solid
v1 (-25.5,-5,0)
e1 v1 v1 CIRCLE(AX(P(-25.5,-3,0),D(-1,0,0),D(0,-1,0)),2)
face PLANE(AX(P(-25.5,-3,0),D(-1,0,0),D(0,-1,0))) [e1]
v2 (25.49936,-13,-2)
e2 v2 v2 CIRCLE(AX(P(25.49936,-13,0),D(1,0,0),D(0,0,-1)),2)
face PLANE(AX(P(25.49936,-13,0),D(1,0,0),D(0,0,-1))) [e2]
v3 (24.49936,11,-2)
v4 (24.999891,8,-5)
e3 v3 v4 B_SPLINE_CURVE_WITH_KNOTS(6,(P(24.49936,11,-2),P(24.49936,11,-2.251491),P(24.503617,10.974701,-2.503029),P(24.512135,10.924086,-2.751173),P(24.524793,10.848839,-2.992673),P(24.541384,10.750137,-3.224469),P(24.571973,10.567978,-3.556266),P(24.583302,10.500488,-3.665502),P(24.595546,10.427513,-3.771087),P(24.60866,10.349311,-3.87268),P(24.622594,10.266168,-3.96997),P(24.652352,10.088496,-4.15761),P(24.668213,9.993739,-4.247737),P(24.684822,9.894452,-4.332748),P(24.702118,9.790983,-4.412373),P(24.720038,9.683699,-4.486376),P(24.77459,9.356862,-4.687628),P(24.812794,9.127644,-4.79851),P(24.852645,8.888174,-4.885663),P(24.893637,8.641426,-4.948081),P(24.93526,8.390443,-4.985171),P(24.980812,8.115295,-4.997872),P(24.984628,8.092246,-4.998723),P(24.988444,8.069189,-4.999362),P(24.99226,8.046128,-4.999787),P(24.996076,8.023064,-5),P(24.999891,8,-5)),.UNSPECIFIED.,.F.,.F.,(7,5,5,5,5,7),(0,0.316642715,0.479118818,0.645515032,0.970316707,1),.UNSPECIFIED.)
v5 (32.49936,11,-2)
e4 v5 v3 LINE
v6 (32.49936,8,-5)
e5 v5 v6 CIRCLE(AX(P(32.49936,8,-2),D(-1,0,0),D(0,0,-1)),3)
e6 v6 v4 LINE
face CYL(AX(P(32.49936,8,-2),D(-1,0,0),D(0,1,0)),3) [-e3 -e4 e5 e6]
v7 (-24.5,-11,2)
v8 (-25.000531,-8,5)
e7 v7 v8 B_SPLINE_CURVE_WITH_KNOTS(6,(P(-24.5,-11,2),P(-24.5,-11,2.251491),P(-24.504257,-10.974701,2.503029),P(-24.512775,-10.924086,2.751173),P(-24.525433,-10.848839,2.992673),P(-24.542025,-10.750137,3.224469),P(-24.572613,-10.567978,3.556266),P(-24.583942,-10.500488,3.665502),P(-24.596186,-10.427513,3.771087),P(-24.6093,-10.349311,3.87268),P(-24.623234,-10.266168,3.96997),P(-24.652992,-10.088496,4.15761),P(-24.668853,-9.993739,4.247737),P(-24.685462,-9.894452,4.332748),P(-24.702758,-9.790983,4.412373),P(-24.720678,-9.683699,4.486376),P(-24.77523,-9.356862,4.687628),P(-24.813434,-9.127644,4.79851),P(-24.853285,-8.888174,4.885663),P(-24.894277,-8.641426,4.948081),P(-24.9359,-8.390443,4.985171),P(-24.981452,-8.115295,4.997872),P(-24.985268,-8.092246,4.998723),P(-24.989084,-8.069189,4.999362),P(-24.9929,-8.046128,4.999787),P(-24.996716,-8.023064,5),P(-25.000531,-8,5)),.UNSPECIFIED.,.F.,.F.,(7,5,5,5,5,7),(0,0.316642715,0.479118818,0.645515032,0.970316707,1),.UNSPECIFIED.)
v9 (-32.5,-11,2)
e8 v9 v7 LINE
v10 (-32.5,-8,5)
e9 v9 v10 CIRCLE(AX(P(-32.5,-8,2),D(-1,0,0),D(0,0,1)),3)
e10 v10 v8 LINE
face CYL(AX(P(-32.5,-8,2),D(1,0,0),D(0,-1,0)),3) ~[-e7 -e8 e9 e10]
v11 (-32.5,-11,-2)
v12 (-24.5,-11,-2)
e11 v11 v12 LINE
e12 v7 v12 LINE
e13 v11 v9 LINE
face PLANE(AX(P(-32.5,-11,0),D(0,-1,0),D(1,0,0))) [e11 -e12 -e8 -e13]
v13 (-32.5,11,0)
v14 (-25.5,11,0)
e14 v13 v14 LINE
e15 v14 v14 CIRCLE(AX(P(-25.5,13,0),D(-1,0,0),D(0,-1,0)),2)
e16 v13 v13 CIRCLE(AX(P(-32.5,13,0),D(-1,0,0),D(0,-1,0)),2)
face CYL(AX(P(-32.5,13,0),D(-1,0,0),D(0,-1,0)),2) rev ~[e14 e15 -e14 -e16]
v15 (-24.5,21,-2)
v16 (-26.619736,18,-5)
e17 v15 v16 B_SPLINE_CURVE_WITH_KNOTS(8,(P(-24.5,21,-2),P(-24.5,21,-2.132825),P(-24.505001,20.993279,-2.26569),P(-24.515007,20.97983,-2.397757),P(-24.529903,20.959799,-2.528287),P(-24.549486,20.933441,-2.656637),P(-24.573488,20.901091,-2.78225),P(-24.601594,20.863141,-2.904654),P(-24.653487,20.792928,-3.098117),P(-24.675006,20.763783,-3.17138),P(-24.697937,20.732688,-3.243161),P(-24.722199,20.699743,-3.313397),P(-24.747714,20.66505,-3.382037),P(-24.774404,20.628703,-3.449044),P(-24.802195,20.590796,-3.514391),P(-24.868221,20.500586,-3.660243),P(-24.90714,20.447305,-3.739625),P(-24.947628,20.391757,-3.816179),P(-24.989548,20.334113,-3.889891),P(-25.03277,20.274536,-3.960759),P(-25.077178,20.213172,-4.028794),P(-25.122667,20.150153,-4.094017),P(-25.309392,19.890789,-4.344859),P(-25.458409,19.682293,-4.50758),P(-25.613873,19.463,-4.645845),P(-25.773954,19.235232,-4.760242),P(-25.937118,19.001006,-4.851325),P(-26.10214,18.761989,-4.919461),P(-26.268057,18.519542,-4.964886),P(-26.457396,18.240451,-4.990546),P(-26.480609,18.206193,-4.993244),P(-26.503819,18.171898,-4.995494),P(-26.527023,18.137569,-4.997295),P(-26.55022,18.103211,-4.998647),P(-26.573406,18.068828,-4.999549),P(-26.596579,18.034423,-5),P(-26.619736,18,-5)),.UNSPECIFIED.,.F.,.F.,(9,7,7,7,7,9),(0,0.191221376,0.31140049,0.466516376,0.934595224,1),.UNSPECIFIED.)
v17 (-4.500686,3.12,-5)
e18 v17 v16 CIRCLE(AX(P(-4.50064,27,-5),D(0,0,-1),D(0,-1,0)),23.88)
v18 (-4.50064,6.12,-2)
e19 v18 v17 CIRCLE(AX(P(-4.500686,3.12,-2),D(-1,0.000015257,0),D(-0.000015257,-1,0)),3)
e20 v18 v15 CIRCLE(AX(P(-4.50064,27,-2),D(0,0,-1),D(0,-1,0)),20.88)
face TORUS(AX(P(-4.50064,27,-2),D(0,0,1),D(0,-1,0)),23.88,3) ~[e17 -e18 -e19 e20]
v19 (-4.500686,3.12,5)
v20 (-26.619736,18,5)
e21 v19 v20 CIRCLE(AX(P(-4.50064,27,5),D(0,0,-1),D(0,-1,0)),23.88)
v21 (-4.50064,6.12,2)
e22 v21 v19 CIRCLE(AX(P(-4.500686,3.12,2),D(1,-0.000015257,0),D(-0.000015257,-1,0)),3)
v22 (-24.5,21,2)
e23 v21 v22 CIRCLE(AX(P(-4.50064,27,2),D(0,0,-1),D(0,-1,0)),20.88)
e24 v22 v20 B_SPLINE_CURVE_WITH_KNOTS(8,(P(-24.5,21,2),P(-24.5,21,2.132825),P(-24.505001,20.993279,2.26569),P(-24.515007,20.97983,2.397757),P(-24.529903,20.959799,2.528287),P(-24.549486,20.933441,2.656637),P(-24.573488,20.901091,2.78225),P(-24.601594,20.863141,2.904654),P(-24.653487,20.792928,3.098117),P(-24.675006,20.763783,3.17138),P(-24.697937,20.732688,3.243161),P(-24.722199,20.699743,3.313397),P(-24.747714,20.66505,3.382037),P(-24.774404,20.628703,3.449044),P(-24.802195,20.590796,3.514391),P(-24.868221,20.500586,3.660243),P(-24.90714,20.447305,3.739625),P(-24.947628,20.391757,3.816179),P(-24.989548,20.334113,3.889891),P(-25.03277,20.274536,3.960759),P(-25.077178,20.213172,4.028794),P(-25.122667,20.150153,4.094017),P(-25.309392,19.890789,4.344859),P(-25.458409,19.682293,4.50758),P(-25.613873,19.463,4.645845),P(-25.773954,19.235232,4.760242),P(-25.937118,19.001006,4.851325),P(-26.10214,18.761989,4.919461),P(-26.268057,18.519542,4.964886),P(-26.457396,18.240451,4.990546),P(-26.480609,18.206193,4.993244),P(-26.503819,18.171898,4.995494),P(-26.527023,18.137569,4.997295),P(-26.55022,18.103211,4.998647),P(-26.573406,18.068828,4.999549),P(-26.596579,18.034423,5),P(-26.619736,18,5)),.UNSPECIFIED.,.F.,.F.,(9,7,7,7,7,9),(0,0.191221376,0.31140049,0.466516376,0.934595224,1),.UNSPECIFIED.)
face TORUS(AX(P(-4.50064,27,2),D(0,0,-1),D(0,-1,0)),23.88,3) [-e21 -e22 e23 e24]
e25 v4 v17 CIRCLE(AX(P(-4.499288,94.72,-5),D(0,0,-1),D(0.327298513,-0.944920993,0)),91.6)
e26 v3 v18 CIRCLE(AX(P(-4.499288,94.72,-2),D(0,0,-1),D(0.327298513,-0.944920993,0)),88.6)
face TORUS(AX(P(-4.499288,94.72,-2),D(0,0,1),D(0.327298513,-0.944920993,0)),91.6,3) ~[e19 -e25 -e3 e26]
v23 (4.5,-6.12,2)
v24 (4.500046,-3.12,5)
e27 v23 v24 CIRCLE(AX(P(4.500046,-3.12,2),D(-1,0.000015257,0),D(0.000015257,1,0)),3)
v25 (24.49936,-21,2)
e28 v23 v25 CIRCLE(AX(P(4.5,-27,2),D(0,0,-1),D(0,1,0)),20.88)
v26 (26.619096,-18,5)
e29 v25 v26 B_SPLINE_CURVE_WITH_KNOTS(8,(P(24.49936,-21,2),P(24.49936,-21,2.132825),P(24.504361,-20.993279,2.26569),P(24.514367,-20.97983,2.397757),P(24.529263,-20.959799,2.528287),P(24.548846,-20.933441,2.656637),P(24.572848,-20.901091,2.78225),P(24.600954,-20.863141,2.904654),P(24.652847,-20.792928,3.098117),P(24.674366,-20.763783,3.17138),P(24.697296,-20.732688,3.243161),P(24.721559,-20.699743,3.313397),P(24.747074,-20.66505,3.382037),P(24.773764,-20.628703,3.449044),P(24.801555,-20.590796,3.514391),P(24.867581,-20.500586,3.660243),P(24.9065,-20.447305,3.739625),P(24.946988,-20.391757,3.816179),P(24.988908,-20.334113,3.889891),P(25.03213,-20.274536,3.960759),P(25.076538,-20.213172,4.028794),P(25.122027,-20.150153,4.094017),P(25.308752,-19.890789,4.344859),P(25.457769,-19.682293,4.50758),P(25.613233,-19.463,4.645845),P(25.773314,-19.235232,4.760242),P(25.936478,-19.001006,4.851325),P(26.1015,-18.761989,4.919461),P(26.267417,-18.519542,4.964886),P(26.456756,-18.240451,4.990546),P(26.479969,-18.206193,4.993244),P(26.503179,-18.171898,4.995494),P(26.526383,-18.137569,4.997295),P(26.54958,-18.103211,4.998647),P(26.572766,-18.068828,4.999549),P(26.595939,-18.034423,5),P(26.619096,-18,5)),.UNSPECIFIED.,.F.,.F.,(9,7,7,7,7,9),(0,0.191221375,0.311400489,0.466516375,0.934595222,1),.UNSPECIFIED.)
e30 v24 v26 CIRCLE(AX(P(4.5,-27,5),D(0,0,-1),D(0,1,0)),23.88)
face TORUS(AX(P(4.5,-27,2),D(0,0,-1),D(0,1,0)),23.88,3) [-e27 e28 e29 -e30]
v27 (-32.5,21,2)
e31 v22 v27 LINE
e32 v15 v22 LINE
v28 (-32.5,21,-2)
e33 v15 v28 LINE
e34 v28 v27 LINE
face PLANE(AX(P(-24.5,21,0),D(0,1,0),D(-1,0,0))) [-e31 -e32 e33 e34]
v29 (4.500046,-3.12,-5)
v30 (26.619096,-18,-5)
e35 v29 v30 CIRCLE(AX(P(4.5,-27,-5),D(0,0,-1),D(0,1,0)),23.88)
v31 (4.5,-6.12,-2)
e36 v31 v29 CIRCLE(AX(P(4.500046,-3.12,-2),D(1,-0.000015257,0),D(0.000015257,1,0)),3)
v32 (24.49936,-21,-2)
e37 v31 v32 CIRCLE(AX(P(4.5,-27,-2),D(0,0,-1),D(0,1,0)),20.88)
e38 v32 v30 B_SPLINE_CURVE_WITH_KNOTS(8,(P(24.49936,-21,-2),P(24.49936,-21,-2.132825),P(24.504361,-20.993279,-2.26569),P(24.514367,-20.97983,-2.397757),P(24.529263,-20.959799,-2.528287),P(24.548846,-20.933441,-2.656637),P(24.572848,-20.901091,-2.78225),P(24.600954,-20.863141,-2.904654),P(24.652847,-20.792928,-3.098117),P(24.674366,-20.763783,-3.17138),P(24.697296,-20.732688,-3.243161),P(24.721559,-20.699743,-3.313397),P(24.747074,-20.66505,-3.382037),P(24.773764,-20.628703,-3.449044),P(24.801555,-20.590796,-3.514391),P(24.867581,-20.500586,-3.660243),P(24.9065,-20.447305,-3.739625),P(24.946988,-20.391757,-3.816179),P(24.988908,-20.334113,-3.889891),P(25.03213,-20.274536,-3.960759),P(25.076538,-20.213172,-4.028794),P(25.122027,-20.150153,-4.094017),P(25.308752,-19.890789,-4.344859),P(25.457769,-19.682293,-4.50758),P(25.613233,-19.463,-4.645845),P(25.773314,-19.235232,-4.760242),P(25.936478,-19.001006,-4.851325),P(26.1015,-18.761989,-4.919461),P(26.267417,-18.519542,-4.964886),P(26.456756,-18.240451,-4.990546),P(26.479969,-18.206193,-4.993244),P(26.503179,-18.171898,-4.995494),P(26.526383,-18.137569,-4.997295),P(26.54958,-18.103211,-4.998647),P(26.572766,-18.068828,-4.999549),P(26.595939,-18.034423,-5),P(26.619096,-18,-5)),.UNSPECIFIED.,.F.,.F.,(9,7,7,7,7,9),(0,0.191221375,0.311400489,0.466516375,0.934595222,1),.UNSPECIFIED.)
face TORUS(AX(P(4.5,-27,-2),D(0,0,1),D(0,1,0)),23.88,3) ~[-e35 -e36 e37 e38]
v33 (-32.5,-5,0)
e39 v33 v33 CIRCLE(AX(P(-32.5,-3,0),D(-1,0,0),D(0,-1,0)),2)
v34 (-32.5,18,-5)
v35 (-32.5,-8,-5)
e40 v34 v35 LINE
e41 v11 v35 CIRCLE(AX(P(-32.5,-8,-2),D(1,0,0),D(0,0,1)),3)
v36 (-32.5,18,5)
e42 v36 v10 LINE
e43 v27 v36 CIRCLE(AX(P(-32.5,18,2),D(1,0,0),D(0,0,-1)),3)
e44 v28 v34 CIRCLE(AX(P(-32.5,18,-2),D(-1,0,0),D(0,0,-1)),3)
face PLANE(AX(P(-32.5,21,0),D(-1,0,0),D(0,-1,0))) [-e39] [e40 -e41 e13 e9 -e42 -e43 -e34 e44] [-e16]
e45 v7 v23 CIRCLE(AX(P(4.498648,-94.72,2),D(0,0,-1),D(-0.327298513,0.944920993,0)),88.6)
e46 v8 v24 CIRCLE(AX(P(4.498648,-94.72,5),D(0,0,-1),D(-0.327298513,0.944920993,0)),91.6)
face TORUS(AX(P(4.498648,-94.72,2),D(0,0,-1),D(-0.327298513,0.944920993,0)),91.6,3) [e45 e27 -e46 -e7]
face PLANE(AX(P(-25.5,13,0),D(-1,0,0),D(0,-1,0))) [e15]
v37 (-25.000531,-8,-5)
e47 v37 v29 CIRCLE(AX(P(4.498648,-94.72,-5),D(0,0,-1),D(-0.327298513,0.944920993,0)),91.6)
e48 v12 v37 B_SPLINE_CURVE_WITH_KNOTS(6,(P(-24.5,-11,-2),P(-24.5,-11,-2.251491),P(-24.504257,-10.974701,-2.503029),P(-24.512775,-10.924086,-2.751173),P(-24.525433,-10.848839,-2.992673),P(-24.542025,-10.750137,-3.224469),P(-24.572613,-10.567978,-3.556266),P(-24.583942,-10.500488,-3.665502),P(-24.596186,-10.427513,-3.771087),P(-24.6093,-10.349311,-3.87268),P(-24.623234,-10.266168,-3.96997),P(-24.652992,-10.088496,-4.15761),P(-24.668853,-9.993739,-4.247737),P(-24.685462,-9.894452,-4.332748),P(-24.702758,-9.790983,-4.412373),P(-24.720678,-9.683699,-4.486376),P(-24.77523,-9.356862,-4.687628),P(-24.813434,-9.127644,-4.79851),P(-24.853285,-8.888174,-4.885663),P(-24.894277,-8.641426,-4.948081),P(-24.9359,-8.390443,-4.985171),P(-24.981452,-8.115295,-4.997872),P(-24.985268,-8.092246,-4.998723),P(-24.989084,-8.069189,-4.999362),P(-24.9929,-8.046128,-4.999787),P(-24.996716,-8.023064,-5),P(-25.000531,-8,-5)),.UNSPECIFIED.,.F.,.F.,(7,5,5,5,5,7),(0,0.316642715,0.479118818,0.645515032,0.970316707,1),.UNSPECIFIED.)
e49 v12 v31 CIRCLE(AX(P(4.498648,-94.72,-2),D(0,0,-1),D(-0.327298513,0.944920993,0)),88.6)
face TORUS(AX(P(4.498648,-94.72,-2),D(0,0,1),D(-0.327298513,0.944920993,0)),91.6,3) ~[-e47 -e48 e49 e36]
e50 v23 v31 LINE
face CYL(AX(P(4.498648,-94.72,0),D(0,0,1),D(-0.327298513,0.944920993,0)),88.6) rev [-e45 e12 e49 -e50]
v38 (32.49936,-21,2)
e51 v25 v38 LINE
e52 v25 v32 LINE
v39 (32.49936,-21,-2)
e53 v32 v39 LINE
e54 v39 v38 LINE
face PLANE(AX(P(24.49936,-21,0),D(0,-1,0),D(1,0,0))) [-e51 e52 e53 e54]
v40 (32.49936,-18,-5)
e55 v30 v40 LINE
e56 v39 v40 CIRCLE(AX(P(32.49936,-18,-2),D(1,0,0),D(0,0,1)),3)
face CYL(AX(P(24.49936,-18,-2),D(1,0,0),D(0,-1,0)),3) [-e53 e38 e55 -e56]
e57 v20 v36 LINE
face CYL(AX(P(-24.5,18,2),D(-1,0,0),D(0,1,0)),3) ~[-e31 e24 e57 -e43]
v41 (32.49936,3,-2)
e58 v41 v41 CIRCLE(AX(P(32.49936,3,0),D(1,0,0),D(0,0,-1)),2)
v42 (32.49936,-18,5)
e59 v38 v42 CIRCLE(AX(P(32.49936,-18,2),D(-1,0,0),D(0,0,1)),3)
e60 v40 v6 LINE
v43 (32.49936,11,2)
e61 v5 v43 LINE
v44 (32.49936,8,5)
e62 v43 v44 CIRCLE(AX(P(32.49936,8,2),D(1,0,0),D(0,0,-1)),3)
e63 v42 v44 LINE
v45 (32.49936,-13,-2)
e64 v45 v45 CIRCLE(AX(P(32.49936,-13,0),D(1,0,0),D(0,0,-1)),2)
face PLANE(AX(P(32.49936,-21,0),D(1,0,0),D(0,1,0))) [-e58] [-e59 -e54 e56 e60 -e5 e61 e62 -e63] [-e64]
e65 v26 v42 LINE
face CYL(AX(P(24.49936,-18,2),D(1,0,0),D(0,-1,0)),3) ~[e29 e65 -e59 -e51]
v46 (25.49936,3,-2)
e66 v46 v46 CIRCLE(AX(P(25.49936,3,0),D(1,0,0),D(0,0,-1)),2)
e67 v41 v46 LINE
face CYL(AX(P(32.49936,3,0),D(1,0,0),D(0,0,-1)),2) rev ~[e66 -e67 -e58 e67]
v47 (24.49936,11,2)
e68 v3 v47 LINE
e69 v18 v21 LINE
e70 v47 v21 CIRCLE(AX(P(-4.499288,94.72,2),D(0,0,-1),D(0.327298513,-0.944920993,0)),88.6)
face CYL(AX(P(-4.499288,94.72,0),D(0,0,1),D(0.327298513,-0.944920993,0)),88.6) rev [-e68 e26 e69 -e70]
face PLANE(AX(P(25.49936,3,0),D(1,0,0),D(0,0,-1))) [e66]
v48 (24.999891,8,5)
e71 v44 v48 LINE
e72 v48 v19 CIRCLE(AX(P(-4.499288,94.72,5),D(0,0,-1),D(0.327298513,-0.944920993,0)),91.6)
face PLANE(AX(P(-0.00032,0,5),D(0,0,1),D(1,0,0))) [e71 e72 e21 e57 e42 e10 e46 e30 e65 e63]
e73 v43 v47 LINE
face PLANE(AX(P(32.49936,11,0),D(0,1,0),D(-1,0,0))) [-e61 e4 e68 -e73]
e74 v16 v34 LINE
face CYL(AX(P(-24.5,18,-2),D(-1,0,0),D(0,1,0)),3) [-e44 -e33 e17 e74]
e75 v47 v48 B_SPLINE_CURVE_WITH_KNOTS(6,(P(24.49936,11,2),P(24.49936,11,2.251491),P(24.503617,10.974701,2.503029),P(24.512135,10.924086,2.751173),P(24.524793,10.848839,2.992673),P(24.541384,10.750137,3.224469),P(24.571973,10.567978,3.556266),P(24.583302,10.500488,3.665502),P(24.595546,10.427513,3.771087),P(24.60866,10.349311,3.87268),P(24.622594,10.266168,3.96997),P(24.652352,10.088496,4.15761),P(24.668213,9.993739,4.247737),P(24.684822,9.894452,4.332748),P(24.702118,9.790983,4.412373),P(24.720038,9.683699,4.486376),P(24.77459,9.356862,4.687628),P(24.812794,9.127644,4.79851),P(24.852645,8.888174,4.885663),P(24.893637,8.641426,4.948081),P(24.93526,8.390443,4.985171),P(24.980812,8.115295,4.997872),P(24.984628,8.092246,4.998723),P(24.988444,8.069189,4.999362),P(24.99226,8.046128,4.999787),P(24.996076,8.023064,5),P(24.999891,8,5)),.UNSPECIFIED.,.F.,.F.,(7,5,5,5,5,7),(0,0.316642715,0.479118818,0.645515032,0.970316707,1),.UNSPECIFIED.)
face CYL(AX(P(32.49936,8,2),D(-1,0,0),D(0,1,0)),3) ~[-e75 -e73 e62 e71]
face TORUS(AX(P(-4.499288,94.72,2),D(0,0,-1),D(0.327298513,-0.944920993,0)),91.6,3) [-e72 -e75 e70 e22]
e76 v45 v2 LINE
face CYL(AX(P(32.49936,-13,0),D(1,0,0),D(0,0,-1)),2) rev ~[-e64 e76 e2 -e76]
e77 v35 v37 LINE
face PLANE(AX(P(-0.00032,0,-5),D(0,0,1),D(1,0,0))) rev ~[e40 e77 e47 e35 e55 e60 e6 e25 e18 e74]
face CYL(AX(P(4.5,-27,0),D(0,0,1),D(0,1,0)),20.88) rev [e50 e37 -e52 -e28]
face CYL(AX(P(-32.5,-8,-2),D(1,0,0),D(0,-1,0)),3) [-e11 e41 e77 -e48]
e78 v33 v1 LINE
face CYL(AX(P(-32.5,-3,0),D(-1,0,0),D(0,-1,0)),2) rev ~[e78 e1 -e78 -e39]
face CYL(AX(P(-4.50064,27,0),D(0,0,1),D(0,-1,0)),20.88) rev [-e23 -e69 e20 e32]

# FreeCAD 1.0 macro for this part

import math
import FreeCAD as App
import Part
import Sketcher
from FreeCAD import Vector
Q = App.Units.Quantity


def edges_at(feature, points):
    """Names of the edges that pass closest to the given points."""
    edges = feature.Shape.Edges
    near = lambda p: min(range(len(edges)), key=lambda i: edges[i].distToShape(Part.Vertex(*p))[0])
    return sorted({f"Edge{near(p) + 1}" for p in points})

doc = App.newDocument("Part")
body = doc.addObject("PartDesign::Body", "Body")

# Sketch on XY plane
sketch1 = body.newObject("Sketcher::SketchObject", "Sketch")
sketch1.AttachmentSupport = (doc.getObject("XY_Plane"), [""])
sketch1.MapMode = "FlatFace"
sketch1.addGeometry([
    Part.LineSegment(Vector(24, -21, 0), Vector(32, -21, 0)),  # 0
    Part.LineSegment(Vector(32, -21, 0), Vector(32, 11, 0)),  # 1
    Part.LineSegment(Vector(32, 11, 0), Vector(24, 11, 0)),  # 2
    Part.ArcOfCircle(Part.Circle(Vector(-4, 95, 0), Vector(0, 0, 1), 89), math.radians(-90), math.radians(-70.9)),  # 3
    Part.ArcOfCircle(Part.Circle(Vector(-5, 27, 0), Vector(0, 0, 1), 21), math.radians(-163), math.radians(-90)),  # 4
    Part.LineSegment(Vector(-24, 21, 0), Vector(-32, 21, 0)),  # 5
    Part.LineSegment(Vector(-32, 21, 0), Vector(-32, -11, 0)),  # 6
    Part.LineSegment(Vector(-32, -11, 0), Vector(-24, -11, 0)),  # 7
    Part.ArcOfCircle(Part.Circle(Vector(4, -95, 0), Vector(0, 0, 1), 89), math.radians(90), math.radians(109.1)),  # 8
    Part.ArcOfCircle(Part.Circle(Vector(4, -27, 0), Vector(0, 0, 1), 21), math.radians(17), math.radians(90)),  # 9
], False)
sketch1.addConstraint([
    Sketcher.Constraint("Coincident", 0, 2, 1, 1),
    Sketcher.Constraint("Coincident", 1, 2, 2, 1),
    Sketcher.Constraint("Coincident", 2, 2, 3, 2),
    Sketcher.Constraint("Coincident", 3, 1, 4, 2),
    Sketcher.Constraint("Coincident", 4, 1, 5, 1),
    Sketcher.Constraint("Coincident", 5, 2, 6, 1),
    Sketcher.Constraint("Coincident", 6, 2, 7, 1),
    Sketcher.Constraint("Coincident", 7, 2, 8, 2),
    Sketcher.Constraint("Coincident", 8, 1, 9, 2),
    Sketcher.Constraint("Coincident", 9, 1, 0, 1),
    Sketcher.Constraint("Horizontal", 0),
    Sketcher.Constraint("Vertical", 1),
    Sketcher.Constraint("Horizontal", 2),
    Sketcher.Constraint("Horizontal", 5),
    Sketcher.Constraint("Vertical", 6),
    Sketcher.Constraint("Horizontal", 7),
    Sketcher.Constraint("Equal", 3, 8),
    Sketcher.Constraint("Equal", 4, 9),
    Sketcher.Constraint("Vertical", 4, 3, 3, 1),
    Sketcher.Constraint("Vertical", 4, 1, 7, 2),
    Sketcher.Constraint("Vertical", 9, 3, 8, 1),
    Sketcher.Constraint("Vertical", 2, 2, 9, 1),
    Sketcher.Constraint("Equal", 2, 5),
    Sketcher.Constraint("Equal", 1, 6),
    Sketcher.Constraint("Radius", 3, Q("88.6 mm")),
    Sketcher.Constraint("DistanceX", 0, 1, 0, 2, Q("8 mm")),
    Sketcher.Constraint("DistanceY", 1, 1, 1, 2, Q("32 mm")),
    Sketcher.Constraint("Radius", 4, Q("20.88 mm")),
    Sketcher.Constraint("DistanceY", -1, 1, 4, 3, Q("27 mm")),
    Sketcher.Constraint("DistanceY", 9, 3, -1, 1, Q("27 mm")),
    Sketcher.Constraint("DistanceY", 0, 2, -1, 1, Q("21 mm")),
    Sketcher.Constraint("DistanceY", -1, 1, 4, 1, Q("21 mm")),
    Sketcher.Constraint("DistanceX", 4, 3, 0, 2, Q("37 mm")),
    Sketcher.Constraint("DistanceX", -1, 1, 9, 3, Q("4.5 mm")),
])
pad1 = body.newObject("PartDesign::Pad", "Pad")
pad1.Profile = sketch1
pad1.Length = 10
pad1.Midplane = True
doc.recompute()

fillet = body.newObject("PartDesign::Fillet", "Fillet")
fillet.Base = (pad1, edges_at(pad1, [
    (28.499, -21, -5),
    (16.964, -10.248, -5),
    (-10.204, -7.348, -5),
    (-28.5, -11, -5),
    (-28.5, 21, -5),
    (-16.964, 10.248, -5),
    (10.203, 7.348, 5),
    (10.203, 7.348, -5),
    (28.499, 11, -5),
    (-16.964, 10.248, 5),
    (-28.5, 21, 5),
    (-28.5, -11, 5),
    (-10.204, -7.348, 5),
    (16.964, -10.248, 5),
    (28.499, -21, 5),
    (28.499, 11, 5),
]))
fillet.Radius = 3

# Sketch on YZ plane
sketch2 = body.newObject("Sketcher::SketchObject", "Sketch001")
sketch2.AttachmentSupport = (doc.getObject("YZ_Plane"), [""])
sketch2.MapMode = "FlatFace"
sketch2.AttachmentOffset = App.Placement(Vector(0, 0, 32.49936), App.Rotation())
sketch2.addGeometry([
    Part.Circle(Vector(-13, 0, 0), Vector(0, 0, 1), 2),
    Part.Circle(Vector(3, 0, 0), Vector(0, 0, 1), 2),
], False)
sketch2.addConstraint([
    Sketcher.Constraint("Equal", 0, 1),
    Sketcher.Constraint("PointOnObject", 0, 3, -1),
    Sketcher.Constraint("PointOnObject", 1, 3, -1),
    Sketcher.Constraint("Diameter", 0, Q("4 mm")),
    Sketcher.Constraint("DistanceX", 0, 3, -1, 1, Q("13 mm")),
    Sketcher.Constraint("DistanceX", -1, 1, 1, 3, Q("3 mm")),
])
pocket1 = body.newObject("PartDesign::Pocket", "Pocket")
pocket1.Profile = sketch2
pocket1.Length = 7

# Sketch on YZ plane
sketch3 = body.newObject("Sketcher::SketchObject", "Sketch002")
sketch3.AttachmentSupport = (doc.getObject("YZ_Plane"), [""])
sketch3.MapMode = "FlatFace"
sketch3.AttachmentOffset = App.Placement(Vector(0, 0, -32.5), App.Rotation())
sketch3.addGeometry([
    Part.Circle(Vector(13, 0, 0), Vector(0, 0, 1), 2),
    Part.Circle(Vector(-3, 0, 0), Vector(0, 0, 1), 2),
], False)
sketch3.addConstraint([
    Sketcher.Constraint("Equal", 0, 1),
    Sketcher.Constraint("PointOnObject", 0, 3, -1),
    Sketcher.Constraint("PointOnObject", 1, 3, -1),
    Sketcher.Constraint("Diameter", 0, Q("4 mm")),
    Sketcher.Constraint("DistanceX", -1, 1, 0, 3, Q("13 mm")),
    Sketcher.Constraint("DistanceX", 1, 3, -1, 1, Q("3 mm")),
])
pocket2 = body.newObject("PartDesign::Pocket", "Pocket001")
pocket2.Profile = sketch3
pocket2.Length = 7
pocket2.Reversed = True

doc.recompute()
